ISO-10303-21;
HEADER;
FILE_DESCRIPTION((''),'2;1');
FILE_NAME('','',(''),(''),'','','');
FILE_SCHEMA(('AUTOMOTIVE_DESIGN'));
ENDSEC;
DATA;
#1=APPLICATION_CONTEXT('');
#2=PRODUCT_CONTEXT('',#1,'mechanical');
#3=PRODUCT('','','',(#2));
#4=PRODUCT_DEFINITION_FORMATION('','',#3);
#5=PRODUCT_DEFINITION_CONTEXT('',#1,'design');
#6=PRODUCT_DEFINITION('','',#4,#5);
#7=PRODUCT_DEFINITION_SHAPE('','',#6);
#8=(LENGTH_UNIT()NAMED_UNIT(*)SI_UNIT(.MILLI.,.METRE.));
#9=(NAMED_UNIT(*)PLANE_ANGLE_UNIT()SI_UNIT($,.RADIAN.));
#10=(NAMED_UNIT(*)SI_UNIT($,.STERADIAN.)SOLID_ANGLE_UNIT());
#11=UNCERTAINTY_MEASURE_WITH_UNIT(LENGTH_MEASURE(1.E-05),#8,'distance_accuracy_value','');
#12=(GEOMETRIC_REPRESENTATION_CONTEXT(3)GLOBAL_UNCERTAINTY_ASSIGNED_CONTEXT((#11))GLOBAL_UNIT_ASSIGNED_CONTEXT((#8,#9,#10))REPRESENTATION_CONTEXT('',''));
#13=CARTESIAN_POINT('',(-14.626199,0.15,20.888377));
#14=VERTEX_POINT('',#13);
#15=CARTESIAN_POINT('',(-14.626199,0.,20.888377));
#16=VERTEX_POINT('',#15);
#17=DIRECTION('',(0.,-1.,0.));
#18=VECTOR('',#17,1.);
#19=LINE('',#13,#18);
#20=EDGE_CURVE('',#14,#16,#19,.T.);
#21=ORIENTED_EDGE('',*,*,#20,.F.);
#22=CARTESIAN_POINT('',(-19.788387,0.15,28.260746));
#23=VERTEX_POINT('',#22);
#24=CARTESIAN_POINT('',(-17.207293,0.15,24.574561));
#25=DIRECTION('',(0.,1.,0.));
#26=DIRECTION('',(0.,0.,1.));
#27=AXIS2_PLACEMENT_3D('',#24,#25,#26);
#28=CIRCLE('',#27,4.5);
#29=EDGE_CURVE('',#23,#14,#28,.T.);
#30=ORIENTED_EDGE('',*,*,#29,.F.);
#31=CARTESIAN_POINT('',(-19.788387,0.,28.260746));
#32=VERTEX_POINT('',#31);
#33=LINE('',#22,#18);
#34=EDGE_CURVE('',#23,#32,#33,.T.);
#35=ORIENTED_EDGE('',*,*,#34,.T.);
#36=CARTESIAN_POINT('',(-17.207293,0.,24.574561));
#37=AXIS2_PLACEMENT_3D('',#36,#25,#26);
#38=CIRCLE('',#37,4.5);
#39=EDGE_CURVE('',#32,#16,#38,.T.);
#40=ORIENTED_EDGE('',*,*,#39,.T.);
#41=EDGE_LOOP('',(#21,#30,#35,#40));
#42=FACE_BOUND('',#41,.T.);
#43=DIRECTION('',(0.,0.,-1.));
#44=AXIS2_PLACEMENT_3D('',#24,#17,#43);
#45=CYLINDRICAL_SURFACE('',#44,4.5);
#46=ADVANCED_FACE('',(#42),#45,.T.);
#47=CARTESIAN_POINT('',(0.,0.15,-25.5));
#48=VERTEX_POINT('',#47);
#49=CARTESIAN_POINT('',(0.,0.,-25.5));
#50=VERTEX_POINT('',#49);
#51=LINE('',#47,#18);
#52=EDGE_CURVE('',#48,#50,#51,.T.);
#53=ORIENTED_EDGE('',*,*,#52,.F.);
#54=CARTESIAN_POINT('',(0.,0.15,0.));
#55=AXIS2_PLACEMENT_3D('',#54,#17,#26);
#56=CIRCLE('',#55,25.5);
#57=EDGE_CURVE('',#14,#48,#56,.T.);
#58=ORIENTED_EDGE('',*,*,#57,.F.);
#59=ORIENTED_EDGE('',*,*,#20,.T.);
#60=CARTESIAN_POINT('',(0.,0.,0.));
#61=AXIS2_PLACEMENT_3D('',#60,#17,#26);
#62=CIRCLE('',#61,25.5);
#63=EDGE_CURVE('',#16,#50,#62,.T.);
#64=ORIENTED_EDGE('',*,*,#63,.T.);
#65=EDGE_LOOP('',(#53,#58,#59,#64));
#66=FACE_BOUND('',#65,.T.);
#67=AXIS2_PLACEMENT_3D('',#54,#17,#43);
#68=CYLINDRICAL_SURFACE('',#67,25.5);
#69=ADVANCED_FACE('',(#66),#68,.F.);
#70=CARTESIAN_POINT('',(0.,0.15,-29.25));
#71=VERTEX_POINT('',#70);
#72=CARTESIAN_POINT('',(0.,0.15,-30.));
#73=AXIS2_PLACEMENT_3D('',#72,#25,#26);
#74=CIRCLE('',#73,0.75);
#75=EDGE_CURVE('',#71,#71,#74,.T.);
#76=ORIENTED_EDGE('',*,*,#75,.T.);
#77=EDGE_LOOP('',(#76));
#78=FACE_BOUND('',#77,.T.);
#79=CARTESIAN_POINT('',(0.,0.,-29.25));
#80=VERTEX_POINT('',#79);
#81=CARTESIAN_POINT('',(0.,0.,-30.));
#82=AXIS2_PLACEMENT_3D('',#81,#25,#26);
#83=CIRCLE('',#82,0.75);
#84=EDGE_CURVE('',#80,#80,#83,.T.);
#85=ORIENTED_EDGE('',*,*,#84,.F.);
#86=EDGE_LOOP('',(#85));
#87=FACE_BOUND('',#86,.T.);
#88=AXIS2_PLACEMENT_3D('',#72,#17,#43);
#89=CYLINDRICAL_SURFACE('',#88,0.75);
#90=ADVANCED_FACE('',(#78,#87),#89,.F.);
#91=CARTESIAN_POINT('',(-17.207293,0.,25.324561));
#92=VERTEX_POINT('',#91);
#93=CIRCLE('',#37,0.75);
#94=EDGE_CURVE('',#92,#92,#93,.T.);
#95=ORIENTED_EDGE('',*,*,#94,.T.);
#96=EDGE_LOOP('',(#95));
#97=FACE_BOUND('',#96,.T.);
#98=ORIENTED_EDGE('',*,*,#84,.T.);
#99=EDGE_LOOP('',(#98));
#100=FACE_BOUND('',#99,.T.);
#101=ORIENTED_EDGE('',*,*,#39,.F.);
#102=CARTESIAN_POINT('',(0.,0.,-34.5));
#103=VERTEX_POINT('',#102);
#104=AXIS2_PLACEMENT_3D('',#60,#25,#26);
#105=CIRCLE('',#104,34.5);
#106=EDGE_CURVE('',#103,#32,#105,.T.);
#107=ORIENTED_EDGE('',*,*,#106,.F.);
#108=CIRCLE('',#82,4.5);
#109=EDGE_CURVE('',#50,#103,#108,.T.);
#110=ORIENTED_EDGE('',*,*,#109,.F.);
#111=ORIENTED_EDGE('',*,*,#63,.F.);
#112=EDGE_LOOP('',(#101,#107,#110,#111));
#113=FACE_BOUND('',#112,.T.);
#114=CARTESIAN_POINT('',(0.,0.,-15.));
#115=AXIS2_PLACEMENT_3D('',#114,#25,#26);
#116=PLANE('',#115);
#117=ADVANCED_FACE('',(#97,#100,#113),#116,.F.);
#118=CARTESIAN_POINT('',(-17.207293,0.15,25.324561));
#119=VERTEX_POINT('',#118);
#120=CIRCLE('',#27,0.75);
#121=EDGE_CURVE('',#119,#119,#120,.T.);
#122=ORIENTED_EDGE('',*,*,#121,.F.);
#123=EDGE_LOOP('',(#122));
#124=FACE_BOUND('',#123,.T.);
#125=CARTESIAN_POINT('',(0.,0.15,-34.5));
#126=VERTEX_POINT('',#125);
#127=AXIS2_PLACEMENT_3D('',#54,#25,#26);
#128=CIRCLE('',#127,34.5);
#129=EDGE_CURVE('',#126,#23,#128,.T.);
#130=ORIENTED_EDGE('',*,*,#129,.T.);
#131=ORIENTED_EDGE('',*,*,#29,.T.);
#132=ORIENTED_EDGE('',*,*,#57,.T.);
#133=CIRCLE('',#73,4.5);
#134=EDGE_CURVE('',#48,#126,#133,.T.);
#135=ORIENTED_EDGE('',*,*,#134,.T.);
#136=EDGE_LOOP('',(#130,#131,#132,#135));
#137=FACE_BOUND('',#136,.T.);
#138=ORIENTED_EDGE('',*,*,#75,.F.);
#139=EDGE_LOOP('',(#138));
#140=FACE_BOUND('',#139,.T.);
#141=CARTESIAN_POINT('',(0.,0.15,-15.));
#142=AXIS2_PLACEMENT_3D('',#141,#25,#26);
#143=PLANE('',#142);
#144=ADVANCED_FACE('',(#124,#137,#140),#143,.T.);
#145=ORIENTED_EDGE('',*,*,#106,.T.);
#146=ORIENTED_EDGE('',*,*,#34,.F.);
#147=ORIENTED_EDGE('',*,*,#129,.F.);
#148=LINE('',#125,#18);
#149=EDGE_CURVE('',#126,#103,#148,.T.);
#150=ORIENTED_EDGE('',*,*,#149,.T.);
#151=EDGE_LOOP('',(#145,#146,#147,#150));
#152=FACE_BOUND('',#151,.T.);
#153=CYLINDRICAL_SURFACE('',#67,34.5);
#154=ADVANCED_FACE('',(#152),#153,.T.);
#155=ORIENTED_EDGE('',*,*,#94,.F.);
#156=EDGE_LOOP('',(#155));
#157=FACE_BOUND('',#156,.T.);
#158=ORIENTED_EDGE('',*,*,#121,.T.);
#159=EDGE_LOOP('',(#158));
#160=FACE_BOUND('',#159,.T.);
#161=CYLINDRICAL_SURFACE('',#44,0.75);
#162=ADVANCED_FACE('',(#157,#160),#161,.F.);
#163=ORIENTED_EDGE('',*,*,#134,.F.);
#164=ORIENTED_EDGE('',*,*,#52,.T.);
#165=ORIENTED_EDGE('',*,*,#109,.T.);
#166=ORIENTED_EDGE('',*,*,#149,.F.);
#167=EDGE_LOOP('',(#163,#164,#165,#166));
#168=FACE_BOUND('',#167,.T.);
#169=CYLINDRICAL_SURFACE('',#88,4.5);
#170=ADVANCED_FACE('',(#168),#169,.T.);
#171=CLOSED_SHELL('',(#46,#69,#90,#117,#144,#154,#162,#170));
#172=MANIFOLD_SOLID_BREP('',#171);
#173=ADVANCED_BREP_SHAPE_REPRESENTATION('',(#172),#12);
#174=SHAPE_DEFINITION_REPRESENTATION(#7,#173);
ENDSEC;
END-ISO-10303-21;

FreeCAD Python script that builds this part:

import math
import FreeCAD as App
import Part
import Sketcher
from FreeCAD import Vector
Q = App.Units.Quantity

doc = App.newDocument("Part")
body = doc.addObject("PartDesign::Body", "Body")

# Sketch on XZ plane
sketch1 = doc.addObject("Sketcher::SketchObject", "Sketch")
body.addObject(sketch1)
sketch1.AttachmentSupport = (doc.XZ_Plane, [""])
sketch1.MapMode = "FlatFace"
sketch1.addGeometry([
    Part.ArcOfCircle(Part.Circle(Vector(0, 0, 0), Vector(0, 0, 1), 34.5), math.radians(125), math.radians(270)),  # 0
    Part.ArcOfCircle(Part.Circle(Vector(-17.2, 24.6, 0), Vector(0, 0, 1), 4.5), math.radians(-55), math.radians(125)),  # 1
    Part.ArcOfCircle(Part.Circle(Vector(0, 0, 0), Vector(0, 0, 1), 25.5), math.radians(125), math.radians(270)),  # 2
    Part.ArcOfCircle(Part.Circle(Vector(0, -30, 0), Vector(0, 0, 1), 4.5), math.radians(-90), math.radians(90)),  # 3
    Part.Circle(Vector(-17.2, 24.6, 0), Vector(0, 0, 1), 0.8),  # 4
    Part.Circle(Vector(0, -30, 0), Vector(0, 0, 1), 0.8),  # 5
], False)
sketch1.addConstraint([
    Sketcher.Constraint("Tangent", 0, 1, 1, 2),
    Sketcher.Constraint("Tangent", 1, 1, 2, 1),
    Sketcher.Constraint("Tangent", 2, 2, 3, 2),
    Sketcher.Constraint("Tangent", 3, 1, 0, 2),
    Sketcher.Constraint("Coincident", 0, 3, -1, 1),
    Sketcher.Constraint("Coincident", 2, 3, -1, 1),
    Sketcher.Constraint("Coincident", 4, 3, 1, 3),
    Sketcher.Constraint("Coincident", 5, 3, 3, 3),
    Sketcher.Constraint("Equal", 4, 5),
    Sketcher.Constraint("PointOnObject", 3, 3, -2),
    Sketcher.Constraint("Diameter", 4, Q("1.5 mm")),
    Sketcher.Constraint("Radius", 0, Q("34.5 mm")),
    Sketcher.Constraint("Radius", 1, Q("4.5 mm")),
    Sketcher.Constraint("DistanceX", 1, 1, -1, 1, Q("14.626199 mm")),
])
pad1 = doc.addObject("PartDesign::Pad", "Pad")
body.addObject(pad1)
pad1.Profile = sketch1
pad1.Length = 0.15
pad1.Reversed = True

doc.recompute()
